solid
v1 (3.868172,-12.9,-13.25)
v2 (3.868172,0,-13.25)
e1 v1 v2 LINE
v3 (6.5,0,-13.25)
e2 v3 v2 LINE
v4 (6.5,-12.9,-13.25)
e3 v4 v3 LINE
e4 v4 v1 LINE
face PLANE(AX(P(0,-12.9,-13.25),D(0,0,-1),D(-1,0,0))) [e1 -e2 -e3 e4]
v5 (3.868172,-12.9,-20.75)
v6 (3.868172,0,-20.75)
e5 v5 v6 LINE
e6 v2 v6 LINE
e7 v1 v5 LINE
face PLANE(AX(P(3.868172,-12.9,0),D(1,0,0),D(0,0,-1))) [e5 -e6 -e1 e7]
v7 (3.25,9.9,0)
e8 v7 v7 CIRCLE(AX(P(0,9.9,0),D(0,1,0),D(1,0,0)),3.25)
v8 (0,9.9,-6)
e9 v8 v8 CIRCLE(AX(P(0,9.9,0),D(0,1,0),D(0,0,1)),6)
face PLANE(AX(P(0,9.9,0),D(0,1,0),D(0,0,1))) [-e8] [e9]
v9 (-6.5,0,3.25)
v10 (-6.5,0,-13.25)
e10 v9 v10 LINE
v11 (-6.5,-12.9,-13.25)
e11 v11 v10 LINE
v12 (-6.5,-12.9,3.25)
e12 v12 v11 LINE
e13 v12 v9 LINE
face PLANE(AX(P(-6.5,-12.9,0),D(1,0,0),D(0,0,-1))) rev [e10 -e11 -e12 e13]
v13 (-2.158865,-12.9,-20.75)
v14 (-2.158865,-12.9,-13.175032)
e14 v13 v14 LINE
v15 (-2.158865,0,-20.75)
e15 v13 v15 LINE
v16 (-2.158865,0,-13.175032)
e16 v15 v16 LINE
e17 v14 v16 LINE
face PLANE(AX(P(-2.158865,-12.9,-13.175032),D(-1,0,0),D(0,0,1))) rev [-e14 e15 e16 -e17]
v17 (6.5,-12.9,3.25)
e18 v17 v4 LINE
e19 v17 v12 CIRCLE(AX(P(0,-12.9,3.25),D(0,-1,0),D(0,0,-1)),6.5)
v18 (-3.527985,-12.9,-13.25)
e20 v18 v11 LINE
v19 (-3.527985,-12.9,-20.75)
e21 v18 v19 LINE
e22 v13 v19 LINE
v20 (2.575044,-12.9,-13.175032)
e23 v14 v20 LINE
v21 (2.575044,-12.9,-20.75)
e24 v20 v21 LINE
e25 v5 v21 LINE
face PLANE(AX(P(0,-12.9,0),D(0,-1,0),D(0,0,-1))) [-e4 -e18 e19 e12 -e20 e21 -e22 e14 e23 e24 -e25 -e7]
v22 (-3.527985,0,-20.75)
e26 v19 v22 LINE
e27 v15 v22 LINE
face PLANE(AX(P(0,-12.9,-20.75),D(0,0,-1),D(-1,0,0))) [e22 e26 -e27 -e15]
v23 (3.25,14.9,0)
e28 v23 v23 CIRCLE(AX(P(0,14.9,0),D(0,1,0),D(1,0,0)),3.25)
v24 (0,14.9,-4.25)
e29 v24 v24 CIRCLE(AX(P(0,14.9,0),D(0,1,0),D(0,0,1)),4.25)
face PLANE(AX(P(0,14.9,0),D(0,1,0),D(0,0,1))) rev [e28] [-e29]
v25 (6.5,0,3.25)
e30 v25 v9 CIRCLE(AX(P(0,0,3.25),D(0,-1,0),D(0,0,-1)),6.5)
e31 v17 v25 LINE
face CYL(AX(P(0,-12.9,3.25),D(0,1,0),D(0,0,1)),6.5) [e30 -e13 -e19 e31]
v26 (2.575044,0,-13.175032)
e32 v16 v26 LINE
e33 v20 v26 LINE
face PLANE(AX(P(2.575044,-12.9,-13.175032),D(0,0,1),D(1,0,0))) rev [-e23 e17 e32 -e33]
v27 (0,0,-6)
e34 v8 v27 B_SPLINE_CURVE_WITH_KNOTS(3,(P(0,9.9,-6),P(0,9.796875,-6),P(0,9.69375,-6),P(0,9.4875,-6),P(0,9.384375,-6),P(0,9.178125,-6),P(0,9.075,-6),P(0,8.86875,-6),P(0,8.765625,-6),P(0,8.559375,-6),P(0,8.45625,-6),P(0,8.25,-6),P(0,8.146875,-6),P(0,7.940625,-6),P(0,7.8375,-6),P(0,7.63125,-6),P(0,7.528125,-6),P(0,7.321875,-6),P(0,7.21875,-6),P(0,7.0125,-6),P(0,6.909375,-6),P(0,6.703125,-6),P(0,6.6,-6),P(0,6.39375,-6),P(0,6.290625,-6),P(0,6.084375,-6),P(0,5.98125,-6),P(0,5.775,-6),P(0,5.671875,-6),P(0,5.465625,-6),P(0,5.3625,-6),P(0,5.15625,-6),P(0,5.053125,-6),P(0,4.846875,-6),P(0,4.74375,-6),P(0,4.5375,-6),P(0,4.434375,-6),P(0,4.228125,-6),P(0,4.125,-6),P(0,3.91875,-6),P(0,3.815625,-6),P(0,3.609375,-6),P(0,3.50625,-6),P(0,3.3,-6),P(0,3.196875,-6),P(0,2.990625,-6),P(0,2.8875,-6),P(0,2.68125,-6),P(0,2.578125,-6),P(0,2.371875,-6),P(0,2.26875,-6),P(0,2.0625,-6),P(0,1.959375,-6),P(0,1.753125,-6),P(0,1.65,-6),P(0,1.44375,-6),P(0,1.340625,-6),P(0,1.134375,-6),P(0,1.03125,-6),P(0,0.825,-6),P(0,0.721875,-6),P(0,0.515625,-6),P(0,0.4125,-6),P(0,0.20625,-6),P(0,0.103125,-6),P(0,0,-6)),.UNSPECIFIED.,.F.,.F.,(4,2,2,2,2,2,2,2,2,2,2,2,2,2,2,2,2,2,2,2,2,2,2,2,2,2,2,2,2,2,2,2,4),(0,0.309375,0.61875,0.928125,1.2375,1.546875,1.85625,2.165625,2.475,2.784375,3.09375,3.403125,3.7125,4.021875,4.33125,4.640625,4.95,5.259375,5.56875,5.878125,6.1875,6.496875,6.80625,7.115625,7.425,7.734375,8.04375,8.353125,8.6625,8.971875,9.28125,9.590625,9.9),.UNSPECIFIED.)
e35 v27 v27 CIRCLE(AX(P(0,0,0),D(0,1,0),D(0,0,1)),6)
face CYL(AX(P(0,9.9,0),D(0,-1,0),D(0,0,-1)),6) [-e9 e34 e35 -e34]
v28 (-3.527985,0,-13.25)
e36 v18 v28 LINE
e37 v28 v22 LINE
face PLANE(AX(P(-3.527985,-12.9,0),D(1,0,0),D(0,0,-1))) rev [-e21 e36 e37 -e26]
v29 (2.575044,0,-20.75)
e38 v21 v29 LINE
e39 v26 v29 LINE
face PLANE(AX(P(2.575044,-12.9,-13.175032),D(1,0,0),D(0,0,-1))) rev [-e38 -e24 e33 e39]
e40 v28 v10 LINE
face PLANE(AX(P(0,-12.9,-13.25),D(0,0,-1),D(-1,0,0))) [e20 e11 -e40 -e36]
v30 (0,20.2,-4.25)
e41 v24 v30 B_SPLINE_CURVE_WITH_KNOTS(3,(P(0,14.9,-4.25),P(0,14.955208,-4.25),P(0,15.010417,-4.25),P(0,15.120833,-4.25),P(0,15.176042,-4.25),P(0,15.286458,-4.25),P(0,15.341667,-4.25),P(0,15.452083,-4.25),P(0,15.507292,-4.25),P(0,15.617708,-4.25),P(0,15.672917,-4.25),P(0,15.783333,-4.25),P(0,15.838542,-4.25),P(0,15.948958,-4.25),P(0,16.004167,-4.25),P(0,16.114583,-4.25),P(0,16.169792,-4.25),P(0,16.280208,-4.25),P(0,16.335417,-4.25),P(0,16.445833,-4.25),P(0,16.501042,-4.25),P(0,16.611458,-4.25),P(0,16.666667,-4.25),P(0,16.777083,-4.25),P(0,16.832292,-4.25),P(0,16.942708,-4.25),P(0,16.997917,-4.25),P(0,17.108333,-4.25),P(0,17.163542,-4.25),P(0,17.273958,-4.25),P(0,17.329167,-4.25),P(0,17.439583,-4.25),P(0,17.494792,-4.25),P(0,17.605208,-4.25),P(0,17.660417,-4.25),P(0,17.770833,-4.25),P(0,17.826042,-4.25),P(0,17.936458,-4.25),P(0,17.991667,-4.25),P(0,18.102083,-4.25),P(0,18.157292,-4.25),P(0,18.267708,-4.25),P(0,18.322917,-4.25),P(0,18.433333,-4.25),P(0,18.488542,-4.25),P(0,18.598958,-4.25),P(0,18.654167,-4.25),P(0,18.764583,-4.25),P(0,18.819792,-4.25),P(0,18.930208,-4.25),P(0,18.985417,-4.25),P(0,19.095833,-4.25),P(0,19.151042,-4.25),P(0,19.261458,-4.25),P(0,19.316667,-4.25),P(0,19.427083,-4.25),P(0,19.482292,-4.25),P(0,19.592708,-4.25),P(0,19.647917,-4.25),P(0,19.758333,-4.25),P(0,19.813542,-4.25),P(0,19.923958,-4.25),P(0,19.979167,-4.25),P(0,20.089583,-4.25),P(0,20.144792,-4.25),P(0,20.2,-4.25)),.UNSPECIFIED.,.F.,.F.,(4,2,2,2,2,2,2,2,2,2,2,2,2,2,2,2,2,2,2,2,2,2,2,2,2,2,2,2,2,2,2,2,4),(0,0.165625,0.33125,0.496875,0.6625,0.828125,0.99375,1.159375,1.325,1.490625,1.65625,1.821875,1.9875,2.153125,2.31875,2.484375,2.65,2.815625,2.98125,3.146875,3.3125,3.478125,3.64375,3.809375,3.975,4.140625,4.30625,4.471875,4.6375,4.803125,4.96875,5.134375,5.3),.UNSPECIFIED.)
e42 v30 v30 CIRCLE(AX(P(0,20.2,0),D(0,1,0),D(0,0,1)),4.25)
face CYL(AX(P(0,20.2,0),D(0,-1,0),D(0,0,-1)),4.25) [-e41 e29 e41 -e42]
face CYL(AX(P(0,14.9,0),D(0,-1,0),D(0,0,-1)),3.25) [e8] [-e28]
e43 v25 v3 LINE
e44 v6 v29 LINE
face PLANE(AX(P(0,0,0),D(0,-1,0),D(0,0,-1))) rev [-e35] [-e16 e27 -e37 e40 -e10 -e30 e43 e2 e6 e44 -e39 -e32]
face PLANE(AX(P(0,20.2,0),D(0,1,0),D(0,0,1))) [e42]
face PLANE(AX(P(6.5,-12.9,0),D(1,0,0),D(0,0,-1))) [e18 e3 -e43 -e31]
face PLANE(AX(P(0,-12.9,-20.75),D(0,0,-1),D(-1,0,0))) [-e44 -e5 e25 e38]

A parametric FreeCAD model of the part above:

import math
import FreeCAD as App
import Part
import Sketcher
from FreeCAD import Vector
Q = App.Units.Quantity

doc = App.newDocument("Part")
body = doc.addObject("PartDesign::Body", "Body")

# Sketch on XZ plane
sketch1 = doc.addObject("Sketcher::SketchObject", "Sketch")
body.addObject(sketch1)
sketch1.AttachmentSupport = (doc.XZ_Plane, [""])
sketch1.MapMode = "FlatFace"
sketch1.addGeometry(Part.Circle(Vector(0, 0, 0), Vector(0, 0, 1), 6), False)
sketch1.addConstraint([
    Sketcher.Constraint("Coincident", 0, 3, -1, 1),
    Sketcher.Constraint("Diameter", 0, Q("12 mm")),
])
pad1 = doc.addObject("PartDesign::Pad", "Pad")
body.addObject(pad1)
pad1.Profile = sketch1
pad1.Length = 9.9
pad1.Reversed = True

# Sketch on XZ plane
sketch2 = doc.addObject("Sketcher::SketchObject", "Sketch001")
body.addObject(sketch2)
sketch2.AttachmentSupport = (doc.XZ_Plane, [""])
sketch2.MapMode = "FlatFace"
sketch2.AttachmentOffset = App.Placement(Vector(0, 0, -9.9), App.Rotation())
sketch2.addGeometry(Part.Circle(Vector(0, 0, 0), Vector(0, 0, 1), 4.25), False)
sketch2.addConstraint([
    Sketcher.Constraint("Coincident", 0, 3, -1, 1),
    Sketcher.Constraint("Diameter", 0, Q("8.5 mm")),
])
pad2 = doc.addObject("PartDesign::Pad", "Pad001")
body.addObject(pad2)
pad2.Profile = sketch2
pad2.Length = 10.3
pad2.Reversed = True

# Sketch on XZ plane
sketch3 = doc.addObject("Sketcher::SketchObject", "Sketch002")
body.addObject(sketch3)
sketch3.AttachmentSupport = (doc.XZ_Plane, [""])
sketch3.MapMode = "FlatFace"
sketch3.AttachmentOffset = App.Placement(Vector(0, 0, -9.9), App.Rotation())
sketch3.addGeometry([
    Part.Circle(Vector(0, 0, 0), Vector(0, 0, 1), 4.25),
    Part.Circle(Vector(0, 0, 0), Vector(0, 0, 1), 3.25),
], False)
sketch3.addConstraint([
    Sketcher.Constraint("Coincident", 0, 3, -1, 1),
    Sketcher.Constraint("Coincident", 1, 3, -1, 1),
    Sketcher.Constraint("Diameter", 0, Q("8.5 mm")),
    Sketcher.Constraint("Diameter", 1, Q("6.5 mm")),
])
pocket1 = doc.addObject("PartDesign::Pocket", "Pocket")
body.addObject(pocket1)
pocket1.Profile = sketch3
pocket1.Length = 5

# Sketch on XZ plane
sketch4 = doc.addObject("Sketcher::SketchObject", "Sketch003")
body.addObject(sketch4)
sketch4.AttachmentSupport = (doc.XZ_Plane, [""])
sketch4.MapMode = "FlatFace"
sketch4.AttachmentOffset = App.Placement(Vector(0, 0, 12.9), App.Rotation())
sketch4.addGeometry([
    Part.ArcOfCircle(Part.Circle(Vector(0, 3.25, 0), Vector(0, 0, 1), 6.5), math.radians(0), math.radians(180)),  # 0
    Part.LineSegment(Vector(-6.5, 3.25, 0), Vector(-6.5, -13.25, 0)),  # 1
    Part.LineSegment(Vector(-6.5, -13.25, 0), Vector(-3.527985, -13.25, 0)),  # 2
    Part.LineSegment(Vector(-3.527985, -13.25, 0), Vector(-3.527985, -20.75, 0)),  # 3
    Part.LineSegment(Vector(-3.527985, -20.75, 0), Vector(3.868172, -20.75, 0)),  # 4
    Part.LineSegment(Vector(3.868172, -20.75, 0), Vector(3.868172, -13.25, 0)),  # 5
    Part.LineSegment(Vector(3.868172, -13.25, 0), Vector(6.5, -13.25, 0)),  # 6
    Part.LineSegment(Vector(6.5, -13.25, 0), Vector(6.5, 3.25, 0)),  # 7
], False)
sketch4.addConstraint([
    Sketcher.Constraint("Tangent", 0, 2, 1, 1),
    Sketcher.Constraint("Coincident", 1, 2, 2, 1),
    Sketcher.Constraint("Coincident", 2, 2, 3, 1),
    Sketcher.Constraint("Coincident", 3, 2, 4, 1),
    Sketcher.Constraint("Coincident", 4, 2, 5, 1),
    Sketcher.Constraint("Coincident", 5, 2, 6, 1),
    Sketcher.Constraint("Coincident", 6, 2, 7, 1),
    Sketcher.Constraint("Tangent", 7, 2, 0, 1),
    Sketcher.Constraint("Vertical", 1),
    Sketcher.Constraint("Horizontal", 2),
    Sketcher.Constraint("Vertical", 3),
    Sketcher.Constraint("Horizontal", 4),
    Sketcher.Constraint("Vertical", 5),
    Sketcher.Constraint("Horizontal", 6),
    Sketcher.Constraint("Vertical", 7),
    Sketcher.Constraint("Symmetric", 1, 2, 6, 2, -2),
    Sketcher.Constraint("Radius", 0, Q("6.5 mm")),
    Sketcher.Constraint("DistanceY", 1, 2, 1, 1, Q("16.5 mm")),
    Sketcher.Constraint("DistanceY", 3, 2, 3, 1, Q("7.5 mm")),
    Sketcher.Constraint("DistanceY", -1, 1, 0, 3, Q("3.25 mm")),
    Sketcher.Constraint("DistanceX", 2, 1, 2, 2, Q("2.972015 mm")),
    Sketcher.Constraint("DistanceX", 4, 1, 4, 2, Q("7.396157 mm")),
])
pad3 = doc.addObject("PartDesign::Pad", "Pad002")
body.addObject(pad3)
pad3.Profile = sketch4
pad3.Length = 12.9
pad3.Reversed = True

# Sketch on XZ plane
sketch5 = doc.addObject("Sketcher::SketchObject", "Sketch004")
body.addObject(sketch5)
sketch5.AttachmentSupport = (doc.XZ_Plane, [""])
sketch5.MapMode = "FlatFace"
sketch5.addGeometry([
    Part.LineSegment(Vector(-2.158865, -20.75, 0), Vector(-2.158865, -13.175032, 0)),
    Part.LineSegment(Vector(-2.158865, -13.175032, 0), Vector(2.575044, -13.175032, 0)),
    Part.LineSegment(Vector(2.575044, -13.175032, 0), Vector(2.575044, -20.75, 0)),
    Part.LineSegment(Vector(2.575044, -20.75, 0), Vector(-2.158865, -20.75, 0)),
], False)
sketch5.addConstraint([
    Sketcher.Constraint("Coincident", 0, 2, 1, 1),
    Sketcher.Constraint("Coincident", 1, 2, 2, 1),
    Sketcher.Constraint("Coincident", 2, 2, 3, 1),
    Sketcher.Constraint("Coincident", 3, 2, 0, 1),
    Sketcher.Constraint("Vertical", 0),
    Sketcher.Constraint("Horizontal", 1),
    Sketcher.Constraint("Vertical", 2),
    Sketcher.Constraint("Horizontal", 3),
    Sketcher.Constraint("DistanceY", 2, 2, -1, 1, Q("20.75 mm")),
    Sketcher.Constraint("DistanceX", 1, 1, 1, 2, Q("4.733909 mm")),
    Sketcher.Constraint("DistanceY", 0, 1, 0, 2, Q("7.574968 mm")),
    Sketcher.Constraint("DistanceX", 0, 2, -1, 1, Q("2.158865 mm")),
])
pocket2 = doc.addObject("PartDesign::Pocket", "Pocket001")
body.addObject(pocket2)
pocket2.Profile = sketch5
pocket2.Length = 12.9
pocket2.Reversed = True

doc.recompute()
